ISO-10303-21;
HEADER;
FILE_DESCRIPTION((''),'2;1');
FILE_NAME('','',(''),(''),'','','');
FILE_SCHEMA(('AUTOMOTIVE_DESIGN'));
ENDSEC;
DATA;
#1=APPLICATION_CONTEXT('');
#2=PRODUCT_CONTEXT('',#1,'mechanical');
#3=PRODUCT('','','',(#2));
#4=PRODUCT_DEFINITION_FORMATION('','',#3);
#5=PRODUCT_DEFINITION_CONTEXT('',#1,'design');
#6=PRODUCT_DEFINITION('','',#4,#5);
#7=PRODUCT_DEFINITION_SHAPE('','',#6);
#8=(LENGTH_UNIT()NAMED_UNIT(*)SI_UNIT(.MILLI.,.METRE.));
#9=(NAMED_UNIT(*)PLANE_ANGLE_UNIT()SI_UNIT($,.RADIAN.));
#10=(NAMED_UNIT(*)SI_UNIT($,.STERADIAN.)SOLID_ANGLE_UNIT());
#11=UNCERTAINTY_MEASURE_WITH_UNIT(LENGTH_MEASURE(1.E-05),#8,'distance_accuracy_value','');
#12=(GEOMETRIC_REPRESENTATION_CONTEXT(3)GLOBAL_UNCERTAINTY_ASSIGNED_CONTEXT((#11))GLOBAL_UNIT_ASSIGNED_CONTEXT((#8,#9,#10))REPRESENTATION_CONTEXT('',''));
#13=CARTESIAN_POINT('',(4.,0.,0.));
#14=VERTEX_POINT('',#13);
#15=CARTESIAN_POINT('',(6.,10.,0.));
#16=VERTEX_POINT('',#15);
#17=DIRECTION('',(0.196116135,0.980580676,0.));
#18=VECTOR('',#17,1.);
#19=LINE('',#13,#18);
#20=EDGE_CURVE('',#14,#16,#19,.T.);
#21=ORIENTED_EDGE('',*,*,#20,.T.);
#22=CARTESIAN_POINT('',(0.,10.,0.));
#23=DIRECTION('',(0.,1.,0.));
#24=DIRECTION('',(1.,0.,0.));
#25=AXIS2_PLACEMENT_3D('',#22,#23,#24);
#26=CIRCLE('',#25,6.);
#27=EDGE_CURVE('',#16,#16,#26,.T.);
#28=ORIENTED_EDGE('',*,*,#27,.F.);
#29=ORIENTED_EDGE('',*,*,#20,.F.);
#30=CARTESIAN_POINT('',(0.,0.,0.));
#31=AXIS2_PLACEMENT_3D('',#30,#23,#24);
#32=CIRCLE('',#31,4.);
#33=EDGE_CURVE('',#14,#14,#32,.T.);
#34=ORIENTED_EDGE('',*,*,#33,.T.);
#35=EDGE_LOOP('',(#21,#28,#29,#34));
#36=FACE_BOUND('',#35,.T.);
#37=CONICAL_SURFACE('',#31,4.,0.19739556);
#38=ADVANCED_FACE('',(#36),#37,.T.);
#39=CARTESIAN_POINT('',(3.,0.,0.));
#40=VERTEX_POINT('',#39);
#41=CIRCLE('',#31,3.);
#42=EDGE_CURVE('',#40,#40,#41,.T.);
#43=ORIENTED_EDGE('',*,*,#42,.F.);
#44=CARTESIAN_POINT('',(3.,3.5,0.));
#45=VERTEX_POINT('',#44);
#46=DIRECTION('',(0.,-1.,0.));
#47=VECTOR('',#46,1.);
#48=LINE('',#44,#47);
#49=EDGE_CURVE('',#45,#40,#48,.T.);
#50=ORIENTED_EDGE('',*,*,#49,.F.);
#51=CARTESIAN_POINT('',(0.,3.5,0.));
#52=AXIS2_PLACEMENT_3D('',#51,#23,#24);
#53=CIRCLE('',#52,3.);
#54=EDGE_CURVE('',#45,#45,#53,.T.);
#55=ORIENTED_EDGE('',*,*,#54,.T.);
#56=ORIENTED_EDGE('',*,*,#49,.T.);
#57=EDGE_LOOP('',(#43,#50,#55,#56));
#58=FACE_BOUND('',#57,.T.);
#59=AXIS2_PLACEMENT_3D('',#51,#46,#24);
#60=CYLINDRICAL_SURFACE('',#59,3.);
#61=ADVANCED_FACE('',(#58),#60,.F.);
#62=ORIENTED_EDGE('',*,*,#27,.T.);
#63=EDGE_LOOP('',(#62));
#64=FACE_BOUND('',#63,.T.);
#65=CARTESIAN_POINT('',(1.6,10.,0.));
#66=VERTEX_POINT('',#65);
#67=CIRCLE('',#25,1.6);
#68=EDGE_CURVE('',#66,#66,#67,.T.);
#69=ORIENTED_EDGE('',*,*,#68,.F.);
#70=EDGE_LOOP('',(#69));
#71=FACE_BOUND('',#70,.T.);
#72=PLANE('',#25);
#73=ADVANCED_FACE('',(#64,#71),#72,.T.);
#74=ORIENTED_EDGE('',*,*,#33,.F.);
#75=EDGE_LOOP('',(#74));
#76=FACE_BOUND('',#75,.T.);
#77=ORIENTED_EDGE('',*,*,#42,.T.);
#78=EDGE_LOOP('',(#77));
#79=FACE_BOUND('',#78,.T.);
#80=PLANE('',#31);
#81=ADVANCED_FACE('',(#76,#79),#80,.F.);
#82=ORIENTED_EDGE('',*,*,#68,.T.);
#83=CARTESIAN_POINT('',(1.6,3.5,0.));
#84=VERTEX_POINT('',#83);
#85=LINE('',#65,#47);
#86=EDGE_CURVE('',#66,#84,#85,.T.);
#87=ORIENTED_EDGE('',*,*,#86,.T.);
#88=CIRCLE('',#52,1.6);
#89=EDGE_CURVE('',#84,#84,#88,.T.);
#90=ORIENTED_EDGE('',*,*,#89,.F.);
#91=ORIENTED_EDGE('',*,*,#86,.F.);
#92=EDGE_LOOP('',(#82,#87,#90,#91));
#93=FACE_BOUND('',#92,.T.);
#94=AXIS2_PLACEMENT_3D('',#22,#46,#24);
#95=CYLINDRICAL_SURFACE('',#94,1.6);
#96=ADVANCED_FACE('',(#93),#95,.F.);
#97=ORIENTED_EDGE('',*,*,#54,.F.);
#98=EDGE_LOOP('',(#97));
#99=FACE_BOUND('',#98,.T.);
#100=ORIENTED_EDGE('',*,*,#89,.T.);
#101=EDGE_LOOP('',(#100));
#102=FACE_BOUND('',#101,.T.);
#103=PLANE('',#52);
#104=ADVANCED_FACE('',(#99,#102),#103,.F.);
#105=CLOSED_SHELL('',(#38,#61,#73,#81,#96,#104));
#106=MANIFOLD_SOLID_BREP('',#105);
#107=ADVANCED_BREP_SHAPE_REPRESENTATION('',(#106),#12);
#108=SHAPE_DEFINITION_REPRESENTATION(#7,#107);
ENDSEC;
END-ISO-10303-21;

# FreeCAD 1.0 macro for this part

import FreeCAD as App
import Part
import Sketcher
from FreeCAD import Vector
Q = App.Units.Quantity


def add_polygon(sketch, points):
    """Adds a closed chain of lines whose ends are joined by coincident constraints."""
    first, n = sketch.GeometryCount, len(points)
    for a, b in zip(points, points[1:] + points[:1]):
        sketch.addGeometry(Part.LineSegment(App.Vector(*a, 0), App.Vector(*b, 0)), False)
    for i in range(n):
        sketch.addConstraint(Sketcher.Constraint("Coincident", first + i, 2, first + (i + 1) % n, 1))

doc = App.newDocument("Part")
params = doc.addObject("Spreadsheet::Sheet", "Params")
for row, (alias, value) in enumerate([
    ("sketch1_width", "1 mm"),
    ("sketch1_width2", "1.4 mm"),
    ("sketch1_width3", "4.4 mm"),
    ("sketch1_height", "6.5 mm"),
    ("sketch1_height2", "3.5 mm"),
    ("revolution_angle", "360 deg"),
], start=1):
    params.set(f"A{row}", alias)
    params.set(f"B{row}", "=" + value)
    params.setAlias(f"B{row}", alias)

body = doc.addObject("PartDesign::Body", "Body")

# Sketch on XY plane
sketch1 = body.newObject("Sketcher::SketchObject", "Sketch")
sketch1.AttachmentSupport = (doc.getObject("XY_Plane"), [""])
sketch1.MapMode = "FlatFace"
add_polygon(sketch1, [(1.6, 10), (1.6, 3.5), (3, 3.5), (3, 0), (4, 0), (6, 10)])  # lines 0-5
sketch1.addConstraint([
    Sketcher.Constraint("Vertical", 0),
    Sketcher.Constraint("Horizontal", 1),
    Sketcher.Constraint("Vertical", 2),
    Sketcher.Constraint("Horizontal", 3),
    Sketcher.Constraint("Horizontal", 5),
    Sketcher.Constraint("PointOnObject", 2, 2, -1),
    Sketcher.Constraint("DistanceX", 3, 1, 3, 2, Q("1 mm")),
    Sketcher.Constraint("DistanceX", 1, 1, 1, 2, Q("1.4 mm")),
    Sketcher.Constraint("DistanceX", 5, 2, 5, 1, Q("4.4 mm")),
    Sketcher.Constraint("DistanceY", 0, 2, 0, 1, Q("6.5 mm")),
    Sketcher.Constraint("DistanceY", 2, 2, 2, 1, Q("3.5 mm")),
    Sketcher.Constraint("DistanceX", -1, 1, 1, 2, Q("3 mm")),
])
sketch1.setExpression("Constraints[12]", "Params.sketch1_width")
sketch1.setExpression("Constraints[13]", "Params.sketch1_width2")
sketch1.setExpression("Constraints[14]", "Params.sketch1_width3")
sketch1.setExpression("Constraints[15]", "Params.sketch1_height")
sketch1.setExpression("Constraints[16]", "Params.sketch1_height2")
revolution = body.newObject("PartDesign::Revolution", "Revolution")
revolution.Profile = sketch1
revolution.ReferenceAxis = (sketch1, ["V_Axis"])
revolution.setExpression("Angle", "Params.revolution_angle")

doc.recompute()
